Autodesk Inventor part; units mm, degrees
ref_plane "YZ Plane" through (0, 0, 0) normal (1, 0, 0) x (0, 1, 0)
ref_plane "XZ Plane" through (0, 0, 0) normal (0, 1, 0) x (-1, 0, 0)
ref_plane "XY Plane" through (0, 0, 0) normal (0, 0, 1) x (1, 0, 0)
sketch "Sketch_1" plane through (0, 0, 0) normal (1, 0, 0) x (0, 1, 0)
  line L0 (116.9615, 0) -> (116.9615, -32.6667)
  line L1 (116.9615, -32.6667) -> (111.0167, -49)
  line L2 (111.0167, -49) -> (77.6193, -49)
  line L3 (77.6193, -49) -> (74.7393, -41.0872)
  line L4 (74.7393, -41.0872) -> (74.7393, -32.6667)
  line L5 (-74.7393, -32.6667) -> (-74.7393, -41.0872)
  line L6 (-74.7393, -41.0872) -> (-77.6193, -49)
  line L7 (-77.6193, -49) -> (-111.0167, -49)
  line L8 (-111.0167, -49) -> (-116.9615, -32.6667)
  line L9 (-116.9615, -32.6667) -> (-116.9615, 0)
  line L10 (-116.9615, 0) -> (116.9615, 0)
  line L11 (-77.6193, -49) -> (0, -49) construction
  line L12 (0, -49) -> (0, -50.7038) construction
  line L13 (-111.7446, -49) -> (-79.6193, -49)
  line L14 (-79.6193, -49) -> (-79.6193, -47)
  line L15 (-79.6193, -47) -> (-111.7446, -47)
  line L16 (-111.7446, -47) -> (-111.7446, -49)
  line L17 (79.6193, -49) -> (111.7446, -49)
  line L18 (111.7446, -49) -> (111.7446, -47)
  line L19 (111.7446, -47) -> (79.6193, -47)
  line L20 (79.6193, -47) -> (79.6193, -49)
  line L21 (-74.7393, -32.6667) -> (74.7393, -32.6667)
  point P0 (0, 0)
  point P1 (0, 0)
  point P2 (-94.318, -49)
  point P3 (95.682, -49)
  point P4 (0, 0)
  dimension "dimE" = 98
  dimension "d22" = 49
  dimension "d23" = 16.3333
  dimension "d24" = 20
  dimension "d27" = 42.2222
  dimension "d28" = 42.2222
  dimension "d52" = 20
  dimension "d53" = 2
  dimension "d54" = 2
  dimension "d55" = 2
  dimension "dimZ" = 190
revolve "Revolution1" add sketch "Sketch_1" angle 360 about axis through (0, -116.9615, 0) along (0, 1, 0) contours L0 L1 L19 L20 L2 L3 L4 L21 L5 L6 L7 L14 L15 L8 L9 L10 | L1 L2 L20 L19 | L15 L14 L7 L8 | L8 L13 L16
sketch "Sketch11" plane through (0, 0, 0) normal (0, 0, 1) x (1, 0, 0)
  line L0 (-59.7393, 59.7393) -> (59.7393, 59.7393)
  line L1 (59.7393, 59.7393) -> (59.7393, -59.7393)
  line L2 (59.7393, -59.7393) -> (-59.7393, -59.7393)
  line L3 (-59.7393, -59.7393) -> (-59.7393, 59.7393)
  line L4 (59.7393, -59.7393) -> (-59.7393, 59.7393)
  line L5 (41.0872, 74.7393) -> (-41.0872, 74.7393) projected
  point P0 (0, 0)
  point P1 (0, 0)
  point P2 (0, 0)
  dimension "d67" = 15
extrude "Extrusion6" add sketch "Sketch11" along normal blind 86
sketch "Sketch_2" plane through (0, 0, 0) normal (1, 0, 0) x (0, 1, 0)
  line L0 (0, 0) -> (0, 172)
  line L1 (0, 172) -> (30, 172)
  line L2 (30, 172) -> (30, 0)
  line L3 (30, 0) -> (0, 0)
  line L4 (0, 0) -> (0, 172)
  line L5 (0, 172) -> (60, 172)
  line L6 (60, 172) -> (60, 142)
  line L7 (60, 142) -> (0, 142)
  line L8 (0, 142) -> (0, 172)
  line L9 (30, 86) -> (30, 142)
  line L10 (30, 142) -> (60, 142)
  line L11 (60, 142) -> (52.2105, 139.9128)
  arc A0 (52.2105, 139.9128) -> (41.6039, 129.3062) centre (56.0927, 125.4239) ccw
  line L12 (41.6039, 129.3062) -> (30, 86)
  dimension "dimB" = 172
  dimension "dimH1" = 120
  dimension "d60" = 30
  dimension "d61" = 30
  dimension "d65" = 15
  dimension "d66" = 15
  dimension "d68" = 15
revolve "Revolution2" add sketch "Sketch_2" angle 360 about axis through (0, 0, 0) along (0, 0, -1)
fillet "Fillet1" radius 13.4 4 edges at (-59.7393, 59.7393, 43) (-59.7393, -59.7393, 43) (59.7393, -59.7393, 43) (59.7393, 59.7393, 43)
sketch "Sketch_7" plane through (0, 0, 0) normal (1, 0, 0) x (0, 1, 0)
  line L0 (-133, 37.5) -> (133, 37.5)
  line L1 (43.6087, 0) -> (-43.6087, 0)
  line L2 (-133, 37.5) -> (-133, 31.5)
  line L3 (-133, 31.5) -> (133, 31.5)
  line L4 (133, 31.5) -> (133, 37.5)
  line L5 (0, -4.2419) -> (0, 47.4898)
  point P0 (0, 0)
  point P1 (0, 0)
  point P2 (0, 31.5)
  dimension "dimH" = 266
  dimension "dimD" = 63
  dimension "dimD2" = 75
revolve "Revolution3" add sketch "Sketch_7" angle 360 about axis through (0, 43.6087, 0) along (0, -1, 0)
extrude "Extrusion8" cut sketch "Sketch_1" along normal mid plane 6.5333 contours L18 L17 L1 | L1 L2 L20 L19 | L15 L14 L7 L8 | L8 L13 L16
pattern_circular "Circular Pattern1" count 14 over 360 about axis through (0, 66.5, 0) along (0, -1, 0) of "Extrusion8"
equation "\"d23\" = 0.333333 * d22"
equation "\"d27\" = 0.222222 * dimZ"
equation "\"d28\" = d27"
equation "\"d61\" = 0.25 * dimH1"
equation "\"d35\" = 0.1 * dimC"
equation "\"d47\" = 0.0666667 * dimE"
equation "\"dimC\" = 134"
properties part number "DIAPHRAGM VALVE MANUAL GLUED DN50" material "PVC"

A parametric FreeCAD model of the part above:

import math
import FreeCAD as App
import Part
import Sketcher
Q = App.Units.Quantity


def edges_at(feature, points):
    """Names of the edges that pass closest to the given points."""
    edges = feature.Shape.Edges
    near = lambda p: min(range(len(edges)), key=lambda i: edges[i].distToShape(Part.Vertex(*p))[0])
    return sorted({f"Edge{near(p) + 1}" for p in points})

doc = App.newDocument("Part")
params = doc.addObject("Spreadsheet::Sheet", "Params")
for row, (alias, value) in enumerate([
    ("sketch1_height", "2 mm"),
    ("revolution_angle", "360 deg"),
    ("pad1_length", "86 mm"),
    ("sketch3_radius", "15 mm"),
    ("sketch3_width", "30 mm"),
    ("sketch3_height", "172 mm"),
    ("sketch3_height2", "86 mm"),
    ("revolution2_angle", "360 deg"),
    ("fillet_radius", "13.4 mm"),
    ("sketch4_width", "266 mm"),
    ("sketch4_height", "6 mm"),
    ("revolution3_angle", "360 deg"),
    ("sketch5_height", "2 mm"),
    ("pocket1_length", "6.5333 mm"),
], start=1):
    params.set(f"A{row}", alias)
    params.set(f"B{row}", "=" + value)
    params.setAlias(f"B{row}", alias)

body = doc.addObject("PartDesign::Body", "Body")

# Sketch on YZ plane
sketch1 = body.newObject("Sketcher::SketchObject", "Sketch")
sketch1.AttachmentSupport = (doc.getObject("YZ_Plane"), [""])
sketch1.MapMode = "FlatFace"
sketch1.addGeometry(Part.LineSegment(App.Vector(116.9615, -32.6667, 0), App.Vector(116.9615, 0, 0)), False)
sketch1.addGeometry(Part.LineSegment(App.Vector(116.9615, 0, 0), App.Vector(-116.9615, 0, 0)), False)
sketch1.addGeometry(Part.LineSegment(App.Vector(-116.9615, 0, 0), App.Vector(-116.9615, -32.6667, 0)), False)
sketch1.addGeometry(Part.LineSegment(App.Vector(-116.9615, -32.6667, 0), App.Vector(-111.744632, -47.000012, 0)), False)
sketch1.addGeometry(Part.LineSegment(App.Vector(-111.7446, -47, 0), App.Vector(-111.7446, -49, 0)), False)
sketch1.addGeometry(Part.LineSegment(App.Vector(-111.7446, -49, 0), App.Vector(-77.6193, -49, 0)), False)
sketch1.addGeometry(Part.LineSegment(App.Vector(-77.6193, -49, 0), App.Vector(-74.7393, -41.0872, 0)), False)
sketch1.addGeometry(Part.LineSegment(App.Vector(-74.7393, -41.0872, 0), App.Vector(-74.7393, -32.6667, 0)), False)
sketch1.addGeometry(Part.LineSegment(App.Vector(-74.7393, -32.6667, 0), App.Vector(74.7393, -32.6667, 0)), False)
sketch1.addGeometry(Part.LineSegment(App.Vector(74.7393, -32.6667, 0), App.Vector(74.7393, -41.0872, 0)), False)
sketch1.addGeometry(Part.LineSegment(App.Vector(74.7393, -41.0872, 0), App.Vector(77.6193, -49, 0)), False)
sketch1.addGeometry(Part.LineSegment(App.Vector(77.6193, -49, 0), App.Vector(111.0167, -49, 0)), False)
sketch1.addGeometry(Part.LineSegment(App.Vector(111.0167, -49, 0), App.Vector(116.9615, -32.6667, 0)), False)
sketch1.addConstraint(Sketcher.Constraint("Coincident", 0, 2, 1, 1))
sketch1.addConstraint(Sketcher.Constraint("Coincident", 1, 2, 2, 1))
sketch1.addConstraint(Sketcher.Constraint("Coincident", 2, 2, 3, 1))
sketch1.addConstraint(Sketcher.Constraint("Coincident", 3, 2, 4, 1))
sketch1.addConstraint(Sketcher.Constraint("Coincident", 4, 2, 5, 1))
sketch1.addConstraint(Sketcher.Constraint("Coincident", 5, 2, 6, 1))
sketch1.addConstraint(Sketcher.Constraint("Coincident", 6, 2, 7, 1))
sketch1.addConstraint(Sketcher.Constraint("Coincident", 7, 2, 8, 1))
sketch1.addConstraint(Sketcher.Constraint("Coincident", 8, 2, 9, 1))
sketch1.addConstraint(Sketcher.Constraint("Coincident", 9, 2, 10, 1))
sketch1.addConstraint(Sketcher.Constraint("Coincident", 10, 2, 11, 1))
sketch1.addConstraint(Sketcher.Constraint("Coincident", 11, 2, 12, 1))
sketch1.addConstraint(Sketcher.Constraint("Coincident", 12, 2, 0, 1))
sketch1.addConstraint(Sketcher.Constraint("Vertical", 0))
sketch1.addConstraint(Sketcher.Constraint("Horizontal", 1))
sketch1.addConstraint(Sketcher.Constraint("Vertical", 2))
sketch1.addConstraint(Sketcher.Constraint("Vertical", 4))
sketch1.addConstraint(Sketcher.Constraint("Horizontal", 5))
sketch1.addConstraint(Sketcher.Constraint("Vertical", 7))
sketch1.addConstraint(Sketcher.Constraint("Horizontal", 8))
sketch1.addConstraint(Sketcher.Constraint("Vertical", 9))
sketch1.addConstraint(Sketcher.Constraint("Horizontal", 11))
sketch1.addConstraint(Sketcher.Constraint("Symmetric", 0, 2, 1, 2, -1, 1))
sketch1.addConstraint(Sketcher.Constraint("Symmetric", 6, 2, 9, 2, -2))
sketch1.addConstraint(Sketcher.Constraint("Symmetric", 5, 2, 10, 2, -2))
sketch1.addConstraint(Sketcher.Constraint("Parallel", 3, 10))
sketch1.addConstraint(Sketcher.Constraint("Parallel", 6, 12))
sketch1.addConstraint(Sketcher.Constraint("Horizontal", 2, 2, 7, 2))
sketch1.addConstraint(Sketcher.Constraint("Horizontal", 8, 2, 12, 2))
sketch1.addConstraint(Sketcher.Constraint("DistanceY", 4, 2, 4, 1, Q("2 mm")))
sketch1.addConstraint(Sketcher.Constraint("DistanceY", 4, 2, -1, 1, Q("49 mm")))
sketch1.addConstraint(Sketcher.Constraint("Angle", 3, Q("-70 deg")))
sketch1.addConstraint(Sketcher.Constraint("DistanceY", 4, 2, 2, 2, Q("16.3333 mm")))
sketch1.addConstraint(Sketcher.Constraint("DistanceX", 2, 2, 6, 2, Q("42.2222 mm")))
sketch1.addConstraint(Sketcher.Constraint("DistanceX", 1, 2, 1, 1, Q("233.923 mm")))
sketch1.addConstraint(Sketcher.Constraint("DistanceX", 5, 2, 6, 2, Q("2.88 mm")))
sketch1.setExpression("Constraints[29]", "Params.sketch1_height")
revolution = body.newObject("PartDesign::Revolution", "Revolution")
revolution.Profile = sketch1
revolution.ReferenceAxis = (sketch1, ["H_Axis"])
revolution.setExpression("Angle", "Params.revolution_angle")

# Sketch on XY plane
sketch2 = body.newObject("Sketcher::SketchObject", "Sketch001")
sketch2.AttachmentSupport = (doc.getObject("XY_Plane"), [""])
sketch2.MapMode = "FlatFace"
sketch2.addGeometry(Part.LineSegment(App.Vector(-59.7393, -59.7393, 0), App.Vector(59.7393, -59.7393, 0)), False)
sketch2.addGeometry(Part.LineSegment(App.Vector(59.7393, -59.7393, 0), App.Vector(59.7393, 59.7393, 0)), False)
sketch2.addGeometry(Part.LineSegment(App.Vector(59.7393, 59.7393, 0), App.Vector(-59.7393, 59.7393, 0)), False)
sketch2.addGeometry(Part.LineSegment(App.Vector(-59.7393, 59.7393, 0), App.Vector(-59.7393, -59.7393, 0)), False)
sketch2.addConstraint(Sketcher.Constraint("Coincident", 0, 2, 1, 1))
sketch2.addConstraint(Sketcher.Constraint("Coincident", 1, 2, 2, 1))
sketch2.addConstraint(Sketcher.Constraint("Coincident", 2, 2, 3, 1))
sketch2.addConstraint(Sketcher.Constraint("Coincident", 3, 2, 0, 1))
sketch2.addConstraint(Sketcher.Constraint("Horizontal", 0))
sketch2.addConstraint(Sketcher.Constraint("Vertical", 1))
sketch2.addConstraint(Sketcher.Constraint("Horizontal", 2))
sketch2.addConstraint(Sketcher.Constraint("Vertical", 3))
sketch2.addConstraint(Sketcher.Constraint("Symmetric", 0, 2, 2, 2, -1, 1))
sketch2.addConstraint(Sketcher.Constraint("Equal", 2, 1))
sketch2.addConstraint(Sketcher.Constraint("DistanceX", 0, 1, 0, 2, Q("119.4786 mm")))
pad1 = body.newObject("PartDesign::Pad", "Pad")
pad1.Profile = sketch2
pad1.setExpression("Length", "Params.pad1_length")

# Sketch on YZ plane
sketch3 = body.newObject("Sketcher::SketchObject", "Sketch002")
sketch3.AttachmentSupport = (doc.getObject("YZ_Plane"), [""])
sketch3.MapMode = "FlatFace"
sketch3.addGeometry(Part.LineSegment(App.Vector(0, 0, 0), App.Vector(30, 0, 0)), False)
sketch3.addGeometry(Part.LineSegment(App.Vector(30, 0, 0), App.Vector(30, 86, 0)), False)
sketch3.addGeometry(Part.LineSegment(App.Vector(30, 86, 0), App.Vector(41.6039, 129.3062, 0)), False)
sketch3.addGeometry(Part.ArcOfCircle(Part.Circle(App.Vector(56.0927, 125.4239, 0), App.Vector(0, 0, 1), 14.99999), math.radians(104.999671), math.radians(164.999861)), False)
sketch3.addGeometry(Part.LineSegment(App.Vector(52.2105, 139.9128, 0), App.Vector(60, 142, 0)), False)
sketch3.addGeometry(Part.LineSegment(App.Vector(60, 142, 0), App.Vector(60, 172, 0)), False)
sketch3.addGeometry(Part.LineSegment(App.Vector(60, 172, 0), App.Vector(0, 172, 0)), False)
sketch3.addGeometry(Part.LineSegment(App.Vector(0, 172, 0), App.Vector(0, 0, 0)), False)
sketch3.addConstraint(Sketcher.Constraint("Coincident", 0, 2, 1, 1))
sketch3.addConstraint(Sketcher.Constraint("Coincident", 1, 2, 2, 1))
sketch3.addConstraint(Sketcher.Constraint("Tangent", 2, 2, 3, 2))
sketch3.addConstraint(Sketcher.Constraint("Tangent", 3, 1, 4, 1))
sketch3.addConstraint(Sketcher.Constraint("Coincident", 4, 2, 5, 1))
sketch3.addConstraint(Sketcher.Constraint("Coincident", 5, 2, 6, 1))
sketch3.addConstraint(Sketcher.Constraint("Coincident", 6, 2, 7, 1))
sketch3.addConstraint(Sketcher.Constraint("Coincident", 7, 2, 0, 1))
sketch3.addConstraint(Sketcher.Constraint("Horizontal", 0))
sketch3.addConstraint(Sketcher.Constraint("Vertical", 1))
sketch3.addConstraint(Sketcher.Constraint("Vertical", 5))
sketch3.addConstraint(Sketcher.Constraint("Horizontal", 6))
sketch3.addConstraint(Sketcher.Constraint("Vertical", 7))
sketch3.addConstraint(Sketcher.Constraint("Coincident", 7, 2, -1, 1))
sketch3.addConstraint(Sketcher.Constraint("Equal", 0, 5))
sketch3.addConstraint(Sketcher.Constraint("Radius", 3, Q("15 mm")))
sketch3.addConstraint(Sketcher.Constraint("DistanceX", 0, 1, 0, 2, Q("30 mm")))
sketch3.addConstraint(Sketcher.Constraint("DistanceY", 7, 2, 7, 1, Q("172 mm")))
sketch3.addConstraint(Sketcher.Constraint("Angle", 4, Q("15 deg")))
sketch3.addConstraint(Sketcher.Constraint("DistanceX", 1, 2, 4, 2, Q("30 mm")))
sketch3.addConstraint(Sketcher.Constraint("DistanceY", 1, 1, 1, 2, Q("86 mm")))
sketch3.addConstraint(Sketcher.Constraint("Angle", 2, Q("75 deg")))
sketch3.setExpression("Constraints[15]", "Params.sketch3_radius")
sketch3.setExpression("Constraints[16]", "Params.sketch3_width")
sketch3.setExpression("Constraints[17]", "Params.sketch3_height")
sketch3.setExpression("Constraints[20]", "Params.sketch3_height2")
revolution2 = body.newObject("PartDesign::Revolution", "Revolution001")
revolution2.Profile = sketch3
revolution2.ReferenceAxis = (sketch3, ["V_Axis"])
revolution2.setExpression("Angle", "Params.revolution2_angle")
doc.recompute()

fillet = body.newObject("PartDesign::Fillet", "Fillet")
fillet.Base = (revolution2, edges_at(revolution2, [
    (-59.739, 59.739, 43),
    (-59.739, -59.739, 43),
    (59.739, -59.739, 43),
    (59.739, 59.739, 43),
]))
fillet.setExpression("Radius", "Params.fillet_radius")

# Sketch on YZ plane
sketch4 = body.newObject("Sketcher::SketchObject", "Sketch003")
sketch4.AttachmentSupport = (doc.getObject("YZ_Plane"), [""])
sketch4.MapMode = "FlatFace"
sketch4.addGeometry(Part.LineSegment(App.Vector(-133, 37.5, 0), App.Vector(-133, 31.5, 0)), False)
sketch4.addGeometry(Part.LineSegment(App.Vector(-133, 31.5, 0), App.Vector(133, 31.5, 0)), False)
sketch4.addGeometry(Part.LineSegment(App.Vector(133, 31.5, 0), App.Vector(133, 37.5, 0)), False)
sketch4.addGeometry(Part.LineSegment(App.Vector(133, 37.5, 0), App.Vector(-133, 37.5, 0)), False)
sketch4.addConstraint(Sketcher.Constraint("Coincident", 0, 2, 1, 1))
sketch4.addConstraint(Sketcher.Constraint("Coincident", 1, 2, 2, 1))
sketch4.addConstraint(Sketcher.Constraint("Coincident", 2, 2, 3, 1))
sketch4.addConstraint(Sketcher.Constraint("Coincident", 3, 2, 0, 1))
sketch4.addConstraint(Sketcher.Constraint("Vertical", 0))
sketch4.addConstraint(Sketcher.Constraint("Horizontal", 1))
sketch4.addConstraint(Sketcher.Constraint("Vertical", 2))
sketch4.addConstraint(Sketcher.Constraint("Horizontal", 3))
sketch4.addConstraint(Sketcher.Constraint("DistanceX", 1, 1, 1, 2, Q("266 mm")))
sketch4.addConstraint(Sketcher.Constraint("DistanceY", 0, 2, 0, 1, Q("6 mm")))
sketch4.addConstraint(Sketcher.Constraint("DistanceX", 0, 2, -1, 1, Q("133 mm")))
sketch4.addConstraint(Sketcher.Constraint("DistanceY", -1, 1, 0, 2, Q("31.5 mm")))
sketch4.setExpression("Constraints[8]", "Params.sketch4_width")
sketch4.setExpression("Constraints[9]", "Params.sketch4_height")
revolution3 = body.newObject("PartDesign::Revolution", "Revolution002")
revolution3.Profile = sketch4
revolution3.ReferenceAxis = (sketch4, ["H_Axis"])
revolution3.setExpression("Angle", "Params.revolution3_angle")

# Sketch on YZ plane
sketch5 = body.newObject("Sketcher::SketchObject", "Sketch004")
sketch5.AttachmentSupport = (doc.getObject("YZ_Plane"), [""])
sketch5.MapMode = "FlatFace"
sketch5.addGeometry(Part.LineSegment(App.Vector(111.7446, -49, 0), App.Vector(111.7446, -47, 0)), False)
sketch5.addGeometry(Part.LineSegment(App.Vector(111.7446, -47, 0), App.Vector(79.6193, -47, 0)), False)
sketch5.addGeometry(Part.LineSegment(App.Vector(79.6193, -47, 0), App.Vector(79.6193, -49, 0)), False)
sketch5.addGeometry(Part.LineSegment(App.Vector(79.6193, -49, 0), App.Vector(111.7446, -49, 0)), False)
sketch5.addGeometry(Part.LineSegment(App.Vector(-79.6193, -47, 0), App.Vector(-111.7446, -47, 0)), False)
sketch5.addGeometry(Part.LineSegment(App.Vector(-111.7446, -47, 0), App.Vector(-111.7446, -49, 0)), False)
sketch5.addGeometry(Part.LineSegment(App.Vector(-111.7446, -49, 0), App.Vector(-79.6193, -49, 0)), False)
sketch5.addGeometry(Part.LineSegment(App.Vector(-79.6193, -49, 0), App.Vector(-79.6193, -47, 0)), False)
sketch5.addConstraint(Sketcher.Constraint("Coincident", 0, 2, 1, 1))
sketch5.addConstraint(Sketcher.Constraint("Coincident", 1, 2, 2, 1))
sketch5.addConstraint(Sketcher.Constraint("Coincident", 2, 2, 3, 1))
sketch5.addConstraint(Sketcher.Constraint("Coincident", 3, 2, 0, 1))
sketch5.addConstraint(Sketcher.Constraint("Coincident", 4, 2, 5, 1))
sketch5.addConstraint(Sketcher.Constraint("Coincident", 5, 2, 6, 1))
sketch5.addConstraint(Sketcher.Constraint("Coincident", 6, 2, 7, 1))
sketch5.addConstraint(Sketcher.Constraint("Coincident", 7, 2, 4, 1))
sketch5.addConstraint(Sketcher.Constraint("Vertical", 0))
sketch5.addConstraint(Sketcher.Constraint("Horizontal", 1))
sketch5.addConstraint(Sketcher.Constraint("Vertical", 2))
sketch5.addConstraint(Sketcher.Constraint("Horizontal", 3))
sketch5.addConstraint(Sketcher.Constraint("Horizontal", 4))
sketch5.addConstraint(Sketcher.Constraint("Vertical", 5))
sketch5.addConstraint(Sketcher.Constraint("Horizontal", 6))
sketch5.addConstraint(Sketcher.Constraint("Vertical", 7))
sketch5.addConstraint(Sketcher.Constraint("Symmetric", 0, 2, 4, 2, -2))
sketch5.addConstraint(Sketcher.Constraint("Symmetric", 2, 2, 6, 2, -2))
sketch5.addConstraint(Sketcher.Constraint("DistanceY", 0, 1, 0, 2, Q("2 mm")))
sketch5.addConstraint(Sketcher.Constraint("DistanceY", 2, 2, -1, 1, Q("49 mm")))
sketch5.addConstraint(Sketcher.Constraint("DistanceX", 1, 2, 1, 1, Q("32.1253 mm")))
sketch5.addConstraint(Sketcher.Constraint("DistanceX", 4, 2, 1, 2, Q("191.364 mm")))
sketch5.setExpression("Constraints[18]", "Params.sketch5_height")
pocket1 = body.newObject("PartDesign::Pocket", "Pocket")
pocket1.Profile = sketch5
pocket1.setExpression("Length", "Params.pocket1_length")
pocket1.Midplane = True
doc.recompute()

polarpattern = body.newObject("PartDesign::PolarPattern", "PolarPattern")
polarpattern.Originals = [pocket1]
polarpattern.Axis = (doc.getObject("Y_Axis"), [""])
polarpattern.Angle = 360
polarpattern.Occurrences = 14
body.Tip = polarpattern

doc.recompute()
